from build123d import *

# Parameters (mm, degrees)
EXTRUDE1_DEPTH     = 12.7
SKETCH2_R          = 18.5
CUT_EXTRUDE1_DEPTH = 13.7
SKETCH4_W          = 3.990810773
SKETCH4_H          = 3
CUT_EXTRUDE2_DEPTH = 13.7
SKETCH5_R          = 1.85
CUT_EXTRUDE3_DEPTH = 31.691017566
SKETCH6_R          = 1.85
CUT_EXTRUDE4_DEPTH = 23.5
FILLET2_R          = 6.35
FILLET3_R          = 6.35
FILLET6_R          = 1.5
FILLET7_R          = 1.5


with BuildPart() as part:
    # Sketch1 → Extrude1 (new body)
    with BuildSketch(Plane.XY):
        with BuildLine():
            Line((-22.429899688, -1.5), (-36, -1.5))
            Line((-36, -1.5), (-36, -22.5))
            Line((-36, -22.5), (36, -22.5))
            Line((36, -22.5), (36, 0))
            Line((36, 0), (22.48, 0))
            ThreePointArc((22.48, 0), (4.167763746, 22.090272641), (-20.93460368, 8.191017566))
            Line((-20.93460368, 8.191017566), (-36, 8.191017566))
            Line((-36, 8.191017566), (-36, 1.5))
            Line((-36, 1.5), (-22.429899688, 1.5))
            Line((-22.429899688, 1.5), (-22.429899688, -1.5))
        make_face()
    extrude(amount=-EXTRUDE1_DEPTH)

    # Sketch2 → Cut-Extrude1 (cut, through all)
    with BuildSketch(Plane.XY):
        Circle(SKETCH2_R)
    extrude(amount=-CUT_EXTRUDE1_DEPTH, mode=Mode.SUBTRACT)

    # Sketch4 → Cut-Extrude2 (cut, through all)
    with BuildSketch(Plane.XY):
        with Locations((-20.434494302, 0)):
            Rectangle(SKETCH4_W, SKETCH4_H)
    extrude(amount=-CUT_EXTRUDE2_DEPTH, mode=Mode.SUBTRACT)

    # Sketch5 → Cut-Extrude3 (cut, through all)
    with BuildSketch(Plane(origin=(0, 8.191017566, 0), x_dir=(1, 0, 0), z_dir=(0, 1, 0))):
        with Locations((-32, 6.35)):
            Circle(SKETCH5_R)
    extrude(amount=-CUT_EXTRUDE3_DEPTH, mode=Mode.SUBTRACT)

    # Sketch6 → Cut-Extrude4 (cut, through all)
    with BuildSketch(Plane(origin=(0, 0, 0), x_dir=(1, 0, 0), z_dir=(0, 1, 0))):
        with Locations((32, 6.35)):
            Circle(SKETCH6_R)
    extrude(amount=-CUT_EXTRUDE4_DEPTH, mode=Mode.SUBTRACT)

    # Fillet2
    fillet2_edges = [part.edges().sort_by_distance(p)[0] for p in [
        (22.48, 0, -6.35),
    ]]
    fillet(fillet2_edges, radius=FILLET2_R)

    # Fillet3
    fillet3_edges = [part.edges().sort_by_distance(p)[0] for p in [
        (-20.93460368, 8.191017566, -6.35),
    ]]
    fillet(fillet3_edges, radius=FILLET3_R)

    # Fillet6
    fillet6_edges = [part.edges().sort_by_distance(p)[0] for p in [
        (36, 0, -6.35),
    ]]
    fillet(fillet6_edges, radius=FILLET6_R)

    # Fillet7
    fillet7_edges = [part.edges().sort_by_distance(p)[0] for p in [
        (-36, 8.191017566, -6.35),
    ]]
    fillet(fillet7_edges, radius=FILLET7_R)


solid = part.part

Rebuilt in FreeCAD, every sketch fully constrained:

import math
import FreeCAD as App
import Part
import Sketcher
from FreeCAD import Vector


def edges_at(feature, points):
    """Names of the edges that pass closest to the given points."""
    edges = feature.Shape.Edges
    near = lambda p: min(range(len(edges)), key=lambda i: edges[i].distToShape(Part.Vertex(*p))[0])
    return sorted({f"Edge{near(p) + 1}" for p in points})


def add_polygon(sketch, points):
    """Adds a closed chain of lines whose ends are joined by coincident constraints."""
    first, n = sketch.GeometryCount, len(points)
    for a, b in zip(points, points[1:] + points[:1]):
        sketch.addGeometry(Part.LineSegment(App.Vector(*a, 0), App.Vector(*b, 0)), False)
    for i in range(n):
        sketch.addConstraint(Sketcher.Constraint("Coincident", first + i, 2, first + (i + 1) % n, 1))

doc = App.newDocument("Part")
body = doc.addObject("PartDesign::Body", "Body")

# Sketch on XY plane
sketch1 = body.newObject("Sketcher::SketchObject", "Sketch")
sketch1.AttachmentSupport = (doc.getObject("XY_Plane"), [""])
sketch1.MapMode = "FlatFace"
sketch1.addGeometry([
    Part.LineSegment(Vector(-22.4, -1.5, 0), Vector(-36, -1.5, 0)),  # 0
    Part.LineSegment(Vector(-36, -1.5, 0), Vector(-36, -22.5, 0)),  # 1
    Part.LineSegment(Vector(-36, -22.5, 0), Vector(36, -22.5, 0)),  # 2
    Part.LineSegment(Vector(36, -22.5, 0), Vector(36, 0, 0)),  # 3
    Part.LineSegment(Vector(36, 0, 0), Vector(22.5, 0, 0)),  # 4
    Part.ArcOfCircle(Part.Circle(Vector(0, 0, 0), Vector(0, 0, 1), 22.5), math.radians(0), math.radians(159)),  # 5
    Part.LineSegment(Vector(-20.9, 8.2, 0), Vector(-36, 8.2, 0)),  # 6
    Part.LineSegment(Vector(-36, 8.2, 0), Vector(-36, 1.5, 0)),  # 7
    Part.LineSegment(Vector(-36, 1.5, 0), Vector(-22.4, 1.5, 0)),  # 8
    Part.LineSegment(Vector(-22.4, 1.5, 0), Vector(-22.4, -1.5, 0)),  # 9
], False)
sketch1.addConstraint([
    Sketcher.Constraint("Coincident", 0, 2, 1, 1),
    Sketcher.Constraint("Coincident", 1, 2, 2, 1),
    Sketcher.Constraint("Coincident", 2, 2, 3, 1),
    Sketcher.Constraint("Coincident", 3, 2, 4, 1),
    Sketcher.Constraint("Coincident", 4, 2, 5, 1),
    Sketcher.Constraint("Coincident", 5, 2, 6, 1),
    Sketcher.Constraint("Coincident", 6, 2, 7, 1),
    Sketcher.Constraint("Coincident", 7, 2, 8, 1),
    Sketcher.Constraint("Coincident", 8, 2, 9, 1),
    Sketcher.Constraint("Coincident", 9, 2, 0, 1),
    Sketcher.Constraint("Horizontal", 0),
    Sketcher.Constraint("Vertical", 1),
    Sketcher.Constraint("Horizontal", 2),
    Sketcher.Constraint("Vertical", 3),
    Sketcher.Constraint("Horizontal", 4),
    Sketcher.Constraint("Horizontal", 6),
    Sketcher.Constraint("Vertical", 7),
    Sketcher.Constraint("Horizontal", 8),
    Sketcher.Constraint("Vertical", 9),
    Sketcher.Constraint("Coincident", 5, 3, -1, 1),
    Sketcher.Constraint("Symmetric", 0, 2, 7, 2, -1),
    Sketcher.Constraint("PointOnObject", 3, 2, -1),
    Sketcher.Constraint("DistanceX", 2, 1, 2, 2, 72.0),
    Sketcher.Constraint("DistanceY", 1, 2, 1, 1, 21.0),
    Sketcher.Constraint("DistanceY", 9, 2, 9, 1, 3.0),
    Sketcher.Constraint("Radius", 5, 22.48),
    Sketcher.Constraint("DistanceX", 0, 2, -1, 1, 36.0),
    Sketcher.Constraint("DistanceX", 0, 2, 0, 1, 13.5701),
    Sketcher.Constraint("DistanceX", 6, 2, 6, 1, 15.065396),
])
pad1 = body.newObject("PartDesign::Pad", "Pad")
pad1.Profile = sketch1
pad1.Length = 12.7
pad1.Reversed = True

# Sketch on XY plane
sketch2 = body.newObject("Sketcher::SketchObject", "Sketch001")
sketch2.AttachmentSupport = (doc.getObject("XY_Plane"), [""])
sketch2.MapMode = "FlatFace"
sketch2.addGeometry(Part.Circle(Vector(0, 0, 0), Vector(0, 0, 1), 18), False)
sketch2.addConstraint([
    Sketcher.Constraint("Coincident", 0, 3, -1, 1),
    Sketcher.Constraint("Diameter", 0, 37.0),
])
pocket1 = body.newObject("PartDesign::Pocket", "Pocket")
pocket1.Profile = sketch2
pocket1.Type = "ThroughAll"

# Sketch on XY plane
sketch3 = body.newObject("Sketcher::SketchObject", "Sketch002")
sketch3.AttachmentSupport = (doc.getObject("XY_Plane"), [""])
sketch3.MapMode = "FlatFace"
add_polygon(sketch3, [(-22.4, 1.5), (-22.4, -1.5), (-18.4, -1.5), (-18.4, 1.5)])  # lines 0-3
sketch3.addConstraint([
    Sketcher.Constraint("Vertical", 0),
    Sketcher.Constraint("Horizontal", 1),
    Sketcher.Constraint("Vertical", 2),
    Sketcher.Constraint("Horizontal", 3),
    Sketcher.Constraint("DistanceY", 0, 2, 0, 1, 3.0),
    Sketcher.Constraint("DistanceY", 0, 2, -1, 1, 1.5),
    Sketcher.Constraint("DistanceX", 1, 1, 1, 2, 3.990811),
    Sketcher.Constraint("DistanceX", 0, 2, -1, 1, 22.4299),
])
pocket2 = body.newObject("PartDesign::Pocket", "Pocket001")
pocket2.Profile = sketch3
pocket2.Type = "ThroughAll"

# Sketch on XZ plane
sketch4 = body.newObject("Sketcher::SketchObject", "Sketch003")
sketch4.AttachmentSupport = (doc.getObject("XZ_Plane"), [""])
sketch4.MapMode = "FlatFace"
sketch4.AttachmentOffset = App.Placement(Vector(0, 0, -8.191018), App.Rotation())
sketch4.addGeometry(Part.Circle(Vector(-32, -6.3, 0), Vector(0, 0, 1), 1.9), False)
sketch4.addConstraint([
    Sketcher.Constraint("Diameter", 0, 3.7),
    Sketcher.Constraint("DistanceX", 0, 3, -1, 1, 32.0),
    Sketcher.Constraint("DistanceY", 0, 3, -1, 1, 6.35),
])
pocket3 = body.newObject("PartDesign::Pocket", "Pocket002")
pocket3.Profile = sketch4
pocket3.Type = "ThroughAll"
pocket3.Reversed = True

# Sketch on XZ plane
sketch5 = body.newObject("Sketcher::SketchObject", "Sketch004")
sketch5.AttachmentSupport = (doc.getObject("XZ_Plane"), [""])
sketch5.MapMode = "FlatFace"
sketch5.addGeometry(Part.Circle(Vector(32, -6.3, 0), Vector(0, 0, 1), 1.9), False)
sketch5.addConstraint([
    Sketcher.Constraint("Diameter", 0, 3.7),
    Sketcher.Constraint("DistanceX", -1, 1, 0, 3, 32.0),
    Sketcher.Constraint("DistanceY", 0, 3, -1, 1, 6.35),
])
pocket4 = body.newObject("PartDesign::Pocket", "Pocket003")
pocket4.Profile = sketch5
pocket4.Type = "ThroughAll"
pocket4.Reversed = True
doc.recompute()

fillet = body.newObject("PartDesign::Fillet", "Fillet")
fillet.Base = (pocket4, edges_at(pocket4, [(22.48, 0, -6.35)]))
fillet.Radius = 6.35
doc.recompute()

fillet2 = body.newObject("PartDesign::Fillet", "Fillet001")
fillet2.Base = (fillet, edges_at(fillet, [(-20.935, 8.191, -6.35)]))
fillet2.Radius = 6.35
doc.recompute()

fillet3 = body.newObject("PartDesign::Fillet", "Fillet002")
fillet3.Base = (fillet2, edges_at(fillet2, [(36, 0, -6.35)]))
fillet3.Radius = 1.5
doc.recompute()

fillet4 = body.newObject("PartDesign::Fillet", "Fillet003")
fillet4.Base = (fillet3, edges_at(fillet3, [(-36, 8.191, -6.35)]))
fillet4.Radius = 1.5

doc.recompute()
